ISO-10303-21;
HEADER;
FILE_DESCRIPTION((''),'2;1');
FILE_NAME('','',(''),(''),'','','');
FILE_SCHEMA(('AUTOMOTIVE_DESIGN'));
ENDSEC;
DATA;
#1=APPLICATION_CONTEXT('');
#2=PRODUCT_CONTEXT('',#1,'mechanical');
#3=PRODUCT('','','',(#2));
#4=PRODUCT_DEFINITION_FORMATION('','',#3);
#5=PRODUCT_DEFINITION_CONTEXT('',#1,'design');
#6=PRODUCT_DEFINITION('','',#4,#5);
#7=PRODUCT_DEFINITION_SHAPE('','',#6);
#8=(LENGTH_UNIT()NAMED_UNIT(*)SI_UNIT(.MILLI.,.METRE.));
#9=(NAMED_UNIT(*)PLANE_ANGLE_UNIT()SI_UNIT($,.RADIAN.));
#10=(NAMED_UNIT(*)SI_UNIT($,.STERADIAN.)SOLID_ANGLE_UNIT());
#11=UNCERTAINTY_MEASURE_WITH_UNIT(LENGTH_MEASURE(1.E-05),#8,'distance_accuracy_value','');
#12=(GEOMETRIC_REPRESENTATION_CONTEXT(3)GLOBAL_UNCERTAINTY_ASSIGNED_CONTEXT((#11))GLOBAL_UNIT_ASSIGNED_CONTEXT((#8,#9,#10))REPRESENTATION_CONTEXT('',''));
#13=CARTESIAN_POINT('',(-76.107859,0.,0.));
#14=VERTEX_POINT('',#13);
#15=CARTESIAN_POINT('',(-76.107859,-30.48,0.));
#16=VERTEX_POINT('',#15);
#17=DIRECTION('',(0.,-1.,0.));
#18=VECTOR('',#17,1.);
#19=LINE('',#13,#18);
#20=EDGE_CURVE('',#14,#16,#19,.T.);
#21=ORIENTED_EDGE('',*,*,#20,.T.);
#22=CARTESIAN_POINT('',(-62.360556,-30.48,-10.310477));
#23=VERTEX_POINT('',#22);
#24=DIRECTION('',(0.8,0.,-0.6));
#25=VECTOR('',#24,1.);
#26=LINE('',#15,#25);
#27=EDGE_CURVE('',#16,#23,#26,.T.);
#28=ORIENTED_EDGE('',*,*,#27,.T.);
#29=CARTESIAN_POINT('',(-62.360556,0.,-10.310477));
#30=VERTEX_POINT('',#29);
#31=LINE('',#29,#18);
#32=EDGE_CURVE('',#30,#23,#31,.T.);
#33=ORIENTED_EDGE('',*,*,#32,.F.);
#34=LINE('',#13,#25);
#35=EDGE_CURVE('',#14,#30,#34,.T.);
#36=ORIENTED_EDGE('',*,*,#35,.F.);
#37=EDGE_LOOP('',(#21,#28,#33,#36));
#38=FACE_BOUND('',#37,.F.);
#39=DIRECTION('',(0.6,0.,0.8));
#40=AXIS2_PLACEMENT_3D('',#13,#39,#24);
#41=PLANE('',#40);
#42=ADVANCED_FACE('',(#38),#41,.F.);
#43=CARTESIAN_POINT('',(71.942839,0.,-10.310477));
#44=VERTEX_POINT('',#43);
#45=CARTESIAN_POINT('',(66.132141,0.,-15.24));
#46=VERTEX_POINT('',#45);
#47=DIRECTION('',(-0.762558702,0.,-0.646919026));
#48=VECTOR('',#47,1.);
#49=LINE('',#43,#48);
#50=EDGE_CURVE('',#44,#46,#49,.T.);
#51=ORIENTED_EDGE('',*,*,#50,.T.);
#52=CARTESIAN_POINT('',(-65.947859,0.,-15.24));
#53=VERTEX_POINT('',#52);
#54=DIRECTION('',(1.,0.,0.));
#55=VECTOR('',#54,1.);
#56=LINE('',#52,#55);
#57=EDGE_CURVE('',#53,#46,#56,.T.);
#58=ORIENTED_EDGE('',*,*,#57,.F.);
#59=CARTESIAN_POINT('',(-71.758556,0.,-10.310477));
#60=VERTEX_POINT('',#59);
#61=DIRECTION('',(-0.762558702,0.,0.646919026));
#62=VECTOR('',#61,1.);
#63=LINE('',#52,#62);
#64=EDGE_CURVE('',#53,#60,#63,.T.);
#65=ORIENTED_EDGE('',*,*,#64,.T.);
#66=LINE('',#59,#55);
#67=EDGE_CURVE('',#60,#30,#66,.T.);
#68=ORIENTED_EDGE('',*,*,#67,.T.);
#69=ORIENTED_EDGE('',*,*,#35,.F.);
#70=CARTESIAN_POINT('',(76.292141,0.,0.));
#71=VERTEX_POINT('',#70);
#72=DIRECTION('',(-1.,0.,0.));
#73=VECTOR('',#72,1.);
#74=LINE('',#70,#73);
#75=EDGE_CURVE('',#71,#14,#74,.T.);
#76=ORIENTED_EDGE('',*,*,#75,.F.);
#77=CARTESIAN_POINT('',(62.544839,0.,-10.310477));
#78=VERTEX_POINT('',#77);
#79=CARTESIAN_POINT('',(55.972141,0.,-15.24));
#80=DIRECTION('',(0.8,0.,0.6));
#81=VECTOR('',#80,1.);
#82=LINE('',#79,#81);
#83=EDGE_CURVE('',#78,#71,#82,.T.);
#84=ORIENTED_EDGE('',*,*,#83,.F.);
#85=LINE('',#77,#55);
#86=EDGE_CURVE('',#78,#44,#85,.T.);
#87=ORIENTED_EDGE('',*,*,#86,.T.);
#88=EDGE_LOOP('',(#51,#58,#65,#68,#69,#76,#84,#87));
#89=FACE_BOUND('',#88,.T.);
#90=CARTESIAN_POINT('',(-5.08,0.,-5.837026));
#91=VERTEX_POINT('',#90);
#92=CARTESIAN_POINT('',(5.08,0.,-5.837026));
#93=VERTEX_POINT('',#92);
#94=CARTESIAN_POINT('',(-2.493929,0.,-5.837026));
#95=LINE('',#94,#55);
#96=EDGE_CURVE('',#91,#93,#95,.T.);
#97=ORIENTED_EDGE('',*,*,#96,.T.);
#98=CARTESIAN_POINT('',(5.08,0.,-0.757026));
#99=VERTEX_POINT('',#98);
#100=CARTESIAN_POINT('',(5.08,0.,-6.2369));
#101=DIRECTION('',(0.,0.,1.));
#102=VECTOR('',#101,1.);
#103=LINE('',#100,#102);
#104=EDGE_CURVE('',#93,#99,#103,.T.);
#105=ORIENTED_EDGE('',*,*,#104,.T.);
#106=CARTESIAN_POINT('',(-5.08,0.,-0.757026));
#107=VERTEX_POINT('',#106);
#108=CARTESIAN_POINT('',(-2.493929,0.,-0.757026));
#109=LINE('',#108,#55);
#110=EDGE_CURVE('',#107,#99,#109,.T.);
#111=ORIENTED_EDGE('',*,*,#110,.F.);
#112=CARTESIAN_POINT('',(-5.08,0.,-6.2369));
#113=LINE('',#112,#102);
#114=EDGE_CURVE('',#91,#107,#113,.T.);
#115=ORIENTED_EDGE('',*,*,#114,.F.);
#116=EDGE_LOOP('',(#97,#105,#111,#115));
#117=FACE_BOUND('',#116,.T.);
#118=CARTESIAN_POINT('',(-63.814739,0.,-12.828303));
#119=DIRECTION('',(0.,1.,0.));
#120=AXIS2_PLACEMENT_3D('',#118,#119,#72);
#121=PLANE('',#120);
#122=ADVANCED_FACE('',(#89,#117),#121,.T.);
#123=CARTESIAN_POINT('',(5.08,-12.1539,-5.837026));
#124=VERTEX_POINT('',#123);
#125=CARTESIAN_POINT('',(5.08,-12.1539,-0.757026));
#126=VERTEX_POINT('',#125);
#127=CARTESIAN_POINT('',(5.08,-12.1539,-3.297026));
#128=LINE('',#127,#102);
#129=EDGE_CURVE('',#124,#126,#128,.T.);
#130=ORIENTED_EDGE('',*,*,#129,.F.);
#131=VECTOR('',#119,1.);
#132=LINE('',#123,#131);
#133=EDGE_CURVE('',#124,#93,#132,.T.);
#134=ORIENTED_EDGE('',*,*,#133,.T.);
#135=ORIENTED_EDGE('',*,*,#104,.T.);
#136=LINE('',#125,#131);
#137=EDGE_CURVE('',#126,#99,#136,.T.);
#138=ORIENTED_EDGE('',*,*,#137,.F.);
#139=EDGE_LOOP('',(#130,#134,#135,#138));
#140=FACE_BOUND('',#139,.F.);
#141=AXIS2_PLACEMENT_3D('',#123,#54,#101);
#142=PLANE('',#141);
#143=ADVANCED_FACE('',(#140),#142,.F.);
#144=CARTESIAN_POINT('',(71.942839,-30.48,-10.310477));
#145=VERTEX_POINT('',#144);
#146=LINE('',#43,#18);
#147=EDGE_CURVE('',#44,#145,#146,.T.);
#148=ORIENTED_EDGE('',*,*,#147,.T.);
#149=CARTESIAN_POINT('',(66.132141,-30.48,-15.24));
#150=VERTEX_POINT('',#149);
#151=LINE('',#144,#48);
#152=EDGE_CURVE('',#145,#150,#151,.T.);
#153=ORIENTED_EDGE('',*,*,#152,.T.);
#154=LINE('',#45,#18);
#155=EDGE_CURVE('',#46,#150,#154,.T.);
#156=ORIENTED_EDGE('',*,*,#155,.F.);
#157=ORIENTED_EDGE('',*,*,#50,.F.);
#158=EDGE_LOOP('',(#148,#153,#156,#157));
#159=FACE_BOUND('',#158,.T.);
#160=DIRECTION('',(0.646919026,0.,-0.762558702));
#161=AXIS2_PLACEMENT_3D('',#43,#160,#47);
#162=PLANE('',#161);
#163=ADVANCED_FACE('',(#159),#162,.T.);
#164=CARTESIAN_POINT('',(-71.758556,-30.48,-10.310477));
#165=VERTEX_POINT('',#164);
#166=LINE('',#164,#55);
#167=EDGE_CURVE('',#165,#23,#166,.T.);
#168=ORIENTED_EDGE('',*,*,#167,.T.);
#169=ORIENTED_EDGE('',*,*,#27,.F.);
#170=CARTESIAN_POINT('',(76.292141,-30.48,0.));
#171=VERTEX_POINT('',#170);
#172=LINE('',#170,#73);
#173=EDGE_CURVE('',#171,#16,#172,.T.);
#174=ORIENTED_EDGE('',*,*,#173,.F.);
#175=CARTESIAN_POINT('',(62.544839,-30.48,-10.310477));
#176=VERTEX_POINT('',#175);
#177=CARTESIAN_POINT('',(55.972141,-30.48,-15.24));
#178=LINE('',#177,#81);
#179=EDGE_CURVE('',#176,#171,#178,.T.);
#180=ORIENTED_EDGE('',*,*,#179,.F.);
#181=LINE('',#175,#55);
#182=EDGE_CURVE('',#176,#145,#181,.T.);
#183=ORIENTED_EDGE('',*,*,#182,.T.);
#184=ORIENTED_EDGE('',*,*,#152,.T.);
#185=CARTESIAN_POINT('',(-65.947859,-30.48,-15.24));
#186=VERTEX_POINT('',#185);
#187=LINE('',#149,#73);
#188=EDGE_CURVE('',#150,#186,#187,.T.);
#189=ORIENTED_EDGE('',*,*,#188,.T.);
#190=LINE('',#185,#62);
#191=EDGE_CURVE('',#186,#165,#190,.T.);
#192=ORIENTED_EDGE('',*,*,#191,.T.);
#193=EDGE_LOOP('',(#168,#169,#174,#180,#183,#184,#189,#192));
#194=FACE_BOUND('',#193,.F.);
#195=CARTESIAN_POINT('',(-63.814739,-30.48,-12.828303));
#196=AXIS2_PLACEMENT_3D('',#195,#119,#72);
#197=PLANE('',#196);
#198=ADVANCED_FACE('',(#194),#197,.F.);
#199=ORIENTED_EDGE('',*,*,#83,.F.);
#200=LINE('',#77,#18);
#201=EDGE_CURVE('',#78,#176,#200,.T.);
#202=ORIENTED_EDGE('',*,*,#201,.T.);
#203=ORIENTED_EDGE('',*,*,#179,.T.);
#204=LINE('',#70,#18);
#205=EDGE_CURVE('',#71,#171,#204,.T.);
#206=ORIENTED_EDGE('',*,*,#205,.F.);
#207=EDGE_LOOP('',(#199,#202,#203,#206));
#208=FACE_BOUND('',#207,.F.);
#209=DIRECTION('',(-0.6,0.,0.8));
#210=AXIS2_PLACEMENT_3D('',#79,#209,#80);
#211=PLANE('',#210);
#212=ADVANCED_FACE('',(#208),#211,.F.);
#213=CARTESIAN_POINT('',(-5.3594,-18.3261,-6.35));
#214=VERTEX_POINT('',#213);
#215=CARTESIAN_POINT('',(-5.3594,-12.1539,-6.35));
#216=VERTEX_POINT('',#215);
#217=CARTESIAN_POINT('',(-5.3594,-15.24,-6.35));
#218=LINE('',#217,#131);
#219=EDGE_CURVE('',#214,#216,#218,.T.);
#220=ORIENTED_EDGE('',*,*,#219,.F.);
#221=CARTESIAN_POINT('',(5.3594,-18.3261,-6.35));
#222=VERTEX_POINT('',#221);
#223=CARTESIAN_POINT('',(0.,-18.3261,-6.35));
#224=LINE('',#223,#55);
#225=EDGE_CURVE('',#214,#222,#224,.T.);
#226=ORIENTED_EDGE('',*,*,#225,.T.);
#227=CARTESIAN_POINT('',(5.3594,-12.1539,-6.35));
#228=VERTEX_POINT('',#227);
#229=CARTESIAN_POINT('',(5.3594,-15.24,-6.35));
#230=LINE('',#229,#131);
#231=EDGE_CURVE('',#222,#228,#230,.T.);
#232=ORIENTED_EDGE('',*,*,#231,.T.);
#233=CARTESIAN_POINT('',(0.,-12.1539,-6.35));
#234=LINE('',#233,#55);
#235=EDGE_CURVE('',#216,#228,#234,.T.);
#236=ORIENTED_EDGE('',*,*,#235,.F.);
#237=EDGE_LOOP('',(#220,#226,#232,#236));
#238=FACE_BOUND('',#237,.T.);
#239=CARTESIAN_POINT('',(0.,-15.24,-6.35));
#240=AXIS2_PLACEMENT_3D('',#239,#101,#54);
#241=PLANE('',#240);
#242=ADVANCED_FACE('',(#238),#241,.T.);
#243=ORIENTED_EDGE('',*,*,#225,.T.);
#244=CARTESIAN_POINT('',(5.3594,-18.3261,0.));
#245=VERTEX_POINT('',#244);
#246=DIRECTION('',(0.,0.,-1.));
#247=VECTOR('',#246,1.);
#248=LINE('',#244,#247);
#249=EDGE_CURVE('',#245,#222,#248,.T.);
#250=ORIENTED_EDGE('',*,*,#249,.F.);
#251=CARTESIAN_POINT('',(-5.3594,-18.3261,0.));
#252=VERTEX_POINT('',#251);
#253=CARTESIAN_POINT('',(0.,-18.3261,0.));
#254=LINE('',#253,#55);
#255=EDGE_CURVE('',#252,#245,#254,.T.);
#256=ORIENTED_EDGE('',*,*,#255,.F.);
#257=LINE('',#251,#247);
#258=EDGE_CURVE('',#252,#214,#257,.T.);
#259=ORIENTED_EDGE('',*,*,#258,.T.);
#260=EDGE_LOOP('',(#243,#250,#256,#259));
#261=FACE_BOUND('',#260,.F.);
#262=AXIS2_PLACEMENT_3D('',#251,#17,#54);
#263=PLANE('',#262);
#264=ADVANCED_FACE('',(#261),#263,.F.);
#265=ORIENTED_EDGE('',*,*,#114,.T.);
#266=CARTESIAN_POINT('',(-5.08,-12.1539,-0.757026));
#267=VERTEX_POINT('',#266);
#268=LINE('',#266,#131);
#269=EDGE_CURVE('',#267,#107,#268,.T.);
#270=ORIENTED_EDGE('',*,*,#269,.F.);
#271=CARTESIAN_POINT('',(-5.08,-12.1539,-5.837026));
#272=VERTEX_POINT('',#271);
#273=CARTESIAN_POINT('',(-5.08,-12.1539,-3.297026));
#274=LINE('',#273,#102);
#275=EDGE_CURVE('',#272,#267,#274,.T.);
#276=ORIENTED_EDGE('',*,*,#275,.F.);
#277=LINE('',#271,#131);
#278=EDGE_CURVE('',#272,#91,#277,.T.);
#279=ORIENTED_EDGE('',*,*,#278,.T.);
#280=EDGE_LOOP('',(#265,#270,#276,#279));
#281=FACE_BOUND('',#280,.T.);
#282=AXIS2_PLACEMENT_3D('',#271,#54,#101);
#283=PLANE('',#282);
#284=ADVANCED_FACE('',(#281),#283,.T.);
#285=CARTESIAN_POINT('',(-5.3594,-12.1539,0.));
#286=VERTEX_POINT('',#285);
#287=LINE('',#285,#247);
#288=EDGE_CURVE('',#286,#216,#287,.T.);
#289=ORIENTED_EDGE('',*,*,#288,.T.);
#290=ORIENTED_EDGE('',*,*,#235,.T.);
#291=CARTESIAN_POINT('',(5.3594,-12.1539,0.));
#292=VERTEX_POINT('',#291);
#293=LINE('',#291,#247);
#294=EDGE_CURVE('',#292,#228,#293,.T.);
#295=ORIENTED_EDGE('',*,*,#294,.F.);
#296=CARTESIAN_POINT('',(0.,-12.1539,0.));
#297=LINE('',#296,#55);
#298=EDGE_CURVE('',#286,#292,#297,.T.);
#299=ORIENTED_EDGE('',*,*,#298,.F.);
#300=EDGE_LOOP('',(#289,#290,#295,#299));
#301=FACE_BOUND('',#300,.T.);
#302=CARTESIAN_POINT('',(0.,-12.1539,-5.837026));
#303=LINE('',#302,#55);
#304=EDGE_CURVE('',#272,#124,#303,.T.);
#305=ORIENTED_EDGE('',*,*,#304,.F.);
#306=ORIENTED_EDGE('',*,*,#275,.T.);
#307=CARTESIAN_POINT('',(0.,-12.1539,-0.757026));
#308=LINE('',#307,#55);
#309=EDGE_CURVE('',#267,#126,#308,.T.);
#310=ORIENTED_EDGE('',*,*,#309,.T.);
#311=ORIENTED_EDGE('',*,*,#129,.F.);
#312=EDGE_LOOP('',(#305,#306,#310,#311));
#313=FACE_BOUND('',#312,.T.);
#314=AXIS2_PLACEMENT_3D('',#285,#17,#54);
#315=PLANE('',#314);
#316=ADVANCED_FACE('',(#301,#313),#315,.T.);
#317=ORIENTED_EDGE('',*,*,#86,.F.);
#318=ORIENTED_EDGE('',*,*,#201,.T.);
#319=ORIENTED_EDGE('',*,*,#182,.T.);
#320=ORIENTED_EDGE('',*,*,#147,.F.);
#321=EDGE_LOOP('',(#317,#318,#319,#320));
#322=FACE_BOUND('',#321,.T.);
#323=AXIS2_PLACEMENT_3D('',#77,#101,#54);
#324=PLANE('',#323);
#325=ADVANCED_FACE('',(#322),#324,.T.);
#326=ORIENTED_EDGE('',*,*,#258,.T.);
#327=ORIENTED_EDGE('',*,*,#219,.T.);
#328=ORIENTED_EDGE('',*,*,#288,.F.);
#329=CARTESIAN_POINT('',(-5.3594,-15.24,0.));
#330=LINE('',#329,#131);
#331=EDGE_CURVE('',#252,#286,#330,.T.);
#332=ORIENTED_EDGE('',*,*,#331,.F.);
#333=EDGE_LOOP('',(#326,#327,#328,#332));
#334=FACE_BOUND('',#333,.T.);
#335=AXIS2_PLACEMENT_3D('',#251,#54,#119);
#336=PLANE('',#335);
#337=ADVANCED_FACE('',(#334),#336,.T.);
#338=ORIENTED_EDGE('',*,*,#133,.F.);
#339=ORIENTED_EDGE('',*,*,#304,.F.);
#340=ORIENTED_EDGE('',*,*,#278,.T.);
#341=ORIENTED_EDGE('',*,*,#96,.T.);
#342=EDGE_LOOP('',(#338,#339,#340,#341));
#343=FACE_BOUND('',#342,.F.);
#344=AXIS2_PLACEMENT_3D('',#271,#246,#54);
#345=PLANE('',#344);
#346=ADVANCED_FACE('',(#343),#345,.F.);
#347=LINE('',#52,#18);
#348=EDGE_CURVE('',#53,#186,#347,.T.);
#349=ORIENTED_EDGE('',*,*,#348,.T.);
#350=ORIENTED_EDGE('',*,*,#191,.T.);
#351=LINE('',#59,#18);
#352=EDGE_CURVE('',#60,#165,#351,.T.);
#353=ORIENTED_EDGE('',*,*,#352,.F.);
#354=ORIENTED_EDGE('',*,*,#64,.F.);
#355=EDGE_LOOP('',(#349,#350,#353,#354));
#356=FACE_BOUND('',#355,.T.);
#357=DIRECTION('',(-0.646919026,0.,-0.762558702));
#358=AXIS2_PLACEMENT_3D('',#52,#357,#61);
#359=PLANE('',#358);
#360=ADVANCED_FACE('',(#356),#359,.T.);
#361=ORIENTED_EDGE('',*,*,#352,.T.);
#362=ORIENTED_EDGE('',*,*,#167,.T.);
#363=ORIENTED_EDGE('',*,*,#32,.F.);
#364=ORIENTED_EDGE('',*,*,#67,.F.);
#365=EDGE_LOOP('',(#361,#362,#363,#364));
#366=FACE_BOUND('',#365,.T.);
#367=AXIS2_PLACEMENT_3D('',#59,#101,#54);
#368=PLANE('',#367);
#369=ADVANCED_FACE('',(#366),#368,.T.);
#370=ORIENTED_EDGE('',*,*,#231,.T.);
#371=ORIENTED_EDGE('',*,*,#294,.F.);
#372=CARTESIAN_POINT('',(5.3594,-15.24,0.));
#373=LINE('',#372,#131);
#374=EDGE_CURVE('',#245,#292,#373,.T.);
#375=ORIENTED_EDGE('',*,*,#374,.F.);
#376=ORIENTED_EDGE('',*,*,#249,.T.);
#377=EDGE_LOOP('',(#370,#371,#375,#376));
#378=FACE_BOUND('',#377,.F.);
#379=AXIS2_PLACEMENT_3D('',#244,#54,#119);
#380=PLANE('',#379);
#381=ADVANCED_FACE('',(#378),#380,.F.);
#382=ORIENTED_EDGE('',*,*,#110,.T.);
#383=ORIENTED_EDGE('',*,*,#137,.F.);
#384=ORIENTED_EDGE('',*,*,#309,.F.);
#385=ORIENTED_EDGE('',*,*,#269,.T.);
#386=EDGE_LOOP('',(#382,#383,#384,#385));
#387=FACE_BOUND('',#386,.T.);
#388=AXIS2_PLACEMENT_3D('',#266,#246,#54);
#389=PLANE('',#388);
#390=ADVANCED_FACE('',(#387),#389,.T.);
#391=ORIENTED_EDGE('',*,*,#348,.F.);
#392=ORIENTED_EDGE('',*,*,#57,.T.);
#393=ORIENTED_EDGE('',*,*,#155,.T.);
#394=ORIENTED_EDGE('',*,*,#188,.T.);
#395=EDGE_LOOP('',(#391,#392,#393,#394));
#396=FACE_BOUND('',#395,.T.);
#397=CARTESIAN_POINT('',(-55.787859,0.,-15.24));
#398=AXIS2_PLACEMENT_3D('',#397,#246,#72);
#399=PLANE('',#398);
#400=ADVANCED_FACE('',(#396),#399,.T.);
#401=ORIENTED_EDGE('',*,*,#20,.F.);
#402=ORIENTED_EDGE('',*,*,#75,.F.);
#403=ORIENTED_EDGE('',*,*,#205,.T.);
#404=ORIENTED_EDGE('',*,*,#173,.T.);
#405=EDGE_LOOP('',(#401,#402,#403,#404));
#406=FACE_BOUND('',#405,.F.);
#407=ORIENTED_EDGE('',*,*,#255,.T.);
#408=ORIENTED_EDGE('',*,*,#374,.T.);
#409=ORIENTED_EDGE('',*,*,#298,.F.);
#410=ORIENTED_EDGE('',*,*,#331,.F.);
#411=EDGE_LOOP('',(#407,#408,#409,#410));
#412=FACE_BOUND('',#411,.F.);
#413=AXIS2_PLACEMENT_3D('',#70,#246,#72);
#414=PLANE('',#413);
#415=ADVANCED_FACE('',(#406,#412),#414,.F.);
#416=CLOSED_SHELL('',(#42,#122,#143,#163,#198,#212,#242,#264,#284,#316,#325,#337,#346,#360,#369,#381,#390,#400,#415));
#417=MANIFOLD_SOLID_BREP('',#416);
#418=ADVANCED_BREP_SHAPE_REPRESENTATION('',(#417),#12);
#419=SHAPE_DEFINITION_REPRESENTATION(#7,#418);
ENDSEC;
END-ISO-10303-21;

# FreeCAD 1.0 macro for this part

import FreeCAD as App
import Part
import Sketcher
from FreeCAD import Vector
Q = App.Units.Quantity


def add_polygon(sketch, points):
    """Adds a closed chain of lines whose ends are joined by coincident constraints."""
    first, n = sketch.GeometryCount, len(points)
    for a, b in zip(points, points[1:] + points[:1]):
        sketch.addGeometry(Part.LineSegment(App.Vector(*a, 0), App.Vector(*b, 0)), False)
    for i in range(n):
        sketch.addConstraint(Sketcher.Constraint("Coincident", first + i, 2, first + (i + 1) % n, 1))

doc = App.newDocument("Part")
body = doc.addObject("PartDesign::Body", "Body")

# Sketch on XZ plane
sketch1 = body.newObject("Sketcher::SketchObject", "Sketch")
sketch1.AttachmentSupport = (doc.getObject("XZ_Plane"), [""])
sketch1.MapMode = "FlatFace"
add_polygon(sketch1, [(76.292141, 0), (-76.107859, 0), (-55.787859, -15.24), (55.972141, -15.24)])  # lines 0-3
sketch1.addConstraint([
    Sketcher.Constraint("Horizontal", 0),
    Sketcher.Constraint("Horizontal", 2),
    Sketcher.Constraint("PointOnObject", 0, 2, -1),
    Sketcher.Constraint("Equal", 1, 3),
    Sketcher.Constraint("DistanceX", 0, 2, 0, 1, Q("6 in")),
    Sketcher.Constraint("Distance", 1, Q("1 in")),
    Sketcher.Constraint("DistanceX", 2, 1, 2, 2, Q("4.4 in")),
    Sketcher.Constraint("DistanceX", 0, 2, -1, 1, Q("76.107859 mm")),
])
pad1 = body.newObject("PartDesign::Pad", "Pad")
pad1.Profile = sketch1
pad1.Length = Q("1.2 in")

# Sketch on XY plane
sketch2 = body.newObject("Sketcher::SketchObject", "Sketch001")
sketch2.AttachmentSupport = (doc.getObject("XY_Plane"), [""])
sketch2.MapMode = "FlatFace"
add_polygon(sketch2, [(-5.3594, -12.1539), (-5.3594, -18.3261), (5.3594, -18.3261), (5.3594, -12.1539)])  # lines 0-3
sketch2.addConstraint([
    Sketcher.Constraint("Vertical", 0),
    Sketcher.Constraint("Horizontal", 1),
    Sketcher.Constraint("Vertical", 2),
    Sketcher.Constraint("Horizontal", 3),
    Sketcher.Constraint("DistanceX", 1, 1, 1, 2, Q("0.422 in")),
    Sketcher.Constraint("DistanceY", 0, 2, 0, 1, Q("0.243 in")),
    Sketcher.Constraint("DistanceX", 0, 2, -1, 1, Q("0.211 in")),
    Sketcher.Constraint("DistanceY", 0, 2, -1, 1, Q("0.7215 in")),
])
pocket1 = body.newObject("PartDesign::Pocket", "Pocket")
pocket1.Profile = sketch2
pocket1.Length = Q("0.25 in")

# Sketch on XZ plane
sketch3 = body.newObject("Sketcher::SketchObject", "Sketch002")
sketch3.AttachmentSupport = (doc.getObject("XZ_Plane"), [""])
sketch3.MapMode = "FlatFace"
sketch3.AttachmentOffset = App.Placement(Vector(0, 0, 0.4785 * 25.4), App.Rotation())
add_polygon(sketch3, [(-5.08, -0.757026), (-5.08, -5.837026), (5.08, -5.837026), (5.08, -0.757026)])  # lines 0-3
sketch3.addConstraint([
    Sketcher.Constraint("Vertical", 0),
    Sketcher.Constraint("Horizontal", 1),
    Sketcher.Constraint("Vertical", 2),
    Sketcher.Constraint("Horizontal", 3),
    Sketcher.Constraint("DistanceX", 1, 1, 1, 2, Q("0.4 in")),
    Sketcher.Constraint("DistanceY", 0, 2, 0, 1, Q("0.2 in")),
    Sketcher.Constraint("DistanceX", 0, 2, -1, 1, Q("0.2 in")),
    Sketcher.Constraint("DistanceY", 0, 2, -1, 1, Q("5.837026 mm")),
])
pocket2 = body.newObject("PartDesign::Pocket", "Pocket001")
pocket2.Profile = sketch3
pocket2.Length = Q("1 in")

# Sketch on XZ plane
sketch4 = body.newObject("Sketcher::SketchObject", "Sketch003")
sketch4.AttachmentSupport = (doc.getObject("XZ_Plane"), [""])
sketch4.MapMode = "FlatFace"
add_polygon(sketch4, [(-62.360556, -10.310477), (-55.787859, -15.24), (-65.947859, -15.24), (-71.758556, -10.310477)])  # lines 0-3
add_polygon(sketch4, [(55.972141, -15.24), (62.544839, -10.310477), (71.942839, -10.310477), (66.132141, -15.24)])  # lines 4-7
sketch4.addConstraint([
    Sketcher.Constraint("Horizontal", 1),
    Sketcher.Constraint("Horizontal", 3),
    Sketcher.Constraint("Horizontal", 5),
    Sketcher.Constraint("Horizontal", 7),
    Sketcher.Constraint("Horizontal", 3, 2, 4, 2),
    Sketcher.Constraint("Horizontal", 1, 2, 6, 2),
    Sketcher.Constraint("Equal", 3, 5),
    Sketcher.Constraint("Equal", 1, 7),
    Sketcher.Constraint("Equal", 0, 4),
    Sketcher.Constraint("DistanceX", 1, 2, 1, 1, Q("0.4 in")),
    Sketcher.Constraint("Distance", 2, Q("0.3 in")),
    Sketcher.Constraint("DistanceX", 3, 1, 3, 2, Q("0.37 in")),
    Sketcher.Constraint("DistanceY", 0, 2, -1, 1, Q("0.6 in")),
    Sketcher.Constraint("DistanceX", 0, 2, 6, 2, Q("4.8 in")),
    Sketcher.Constraint("Distance", 0, Q("8.215872 mm")),
    Sketcher.Constraint("DistanceX", 0, 2, -1, 1, Q("55.787859 mm")),
])
pad2 = body.newObject("PartDesign::Pad", "Pad001")
pad2.Profile = sketch4
pad2.Length = Q("1.2 in")

doc.recompute()
